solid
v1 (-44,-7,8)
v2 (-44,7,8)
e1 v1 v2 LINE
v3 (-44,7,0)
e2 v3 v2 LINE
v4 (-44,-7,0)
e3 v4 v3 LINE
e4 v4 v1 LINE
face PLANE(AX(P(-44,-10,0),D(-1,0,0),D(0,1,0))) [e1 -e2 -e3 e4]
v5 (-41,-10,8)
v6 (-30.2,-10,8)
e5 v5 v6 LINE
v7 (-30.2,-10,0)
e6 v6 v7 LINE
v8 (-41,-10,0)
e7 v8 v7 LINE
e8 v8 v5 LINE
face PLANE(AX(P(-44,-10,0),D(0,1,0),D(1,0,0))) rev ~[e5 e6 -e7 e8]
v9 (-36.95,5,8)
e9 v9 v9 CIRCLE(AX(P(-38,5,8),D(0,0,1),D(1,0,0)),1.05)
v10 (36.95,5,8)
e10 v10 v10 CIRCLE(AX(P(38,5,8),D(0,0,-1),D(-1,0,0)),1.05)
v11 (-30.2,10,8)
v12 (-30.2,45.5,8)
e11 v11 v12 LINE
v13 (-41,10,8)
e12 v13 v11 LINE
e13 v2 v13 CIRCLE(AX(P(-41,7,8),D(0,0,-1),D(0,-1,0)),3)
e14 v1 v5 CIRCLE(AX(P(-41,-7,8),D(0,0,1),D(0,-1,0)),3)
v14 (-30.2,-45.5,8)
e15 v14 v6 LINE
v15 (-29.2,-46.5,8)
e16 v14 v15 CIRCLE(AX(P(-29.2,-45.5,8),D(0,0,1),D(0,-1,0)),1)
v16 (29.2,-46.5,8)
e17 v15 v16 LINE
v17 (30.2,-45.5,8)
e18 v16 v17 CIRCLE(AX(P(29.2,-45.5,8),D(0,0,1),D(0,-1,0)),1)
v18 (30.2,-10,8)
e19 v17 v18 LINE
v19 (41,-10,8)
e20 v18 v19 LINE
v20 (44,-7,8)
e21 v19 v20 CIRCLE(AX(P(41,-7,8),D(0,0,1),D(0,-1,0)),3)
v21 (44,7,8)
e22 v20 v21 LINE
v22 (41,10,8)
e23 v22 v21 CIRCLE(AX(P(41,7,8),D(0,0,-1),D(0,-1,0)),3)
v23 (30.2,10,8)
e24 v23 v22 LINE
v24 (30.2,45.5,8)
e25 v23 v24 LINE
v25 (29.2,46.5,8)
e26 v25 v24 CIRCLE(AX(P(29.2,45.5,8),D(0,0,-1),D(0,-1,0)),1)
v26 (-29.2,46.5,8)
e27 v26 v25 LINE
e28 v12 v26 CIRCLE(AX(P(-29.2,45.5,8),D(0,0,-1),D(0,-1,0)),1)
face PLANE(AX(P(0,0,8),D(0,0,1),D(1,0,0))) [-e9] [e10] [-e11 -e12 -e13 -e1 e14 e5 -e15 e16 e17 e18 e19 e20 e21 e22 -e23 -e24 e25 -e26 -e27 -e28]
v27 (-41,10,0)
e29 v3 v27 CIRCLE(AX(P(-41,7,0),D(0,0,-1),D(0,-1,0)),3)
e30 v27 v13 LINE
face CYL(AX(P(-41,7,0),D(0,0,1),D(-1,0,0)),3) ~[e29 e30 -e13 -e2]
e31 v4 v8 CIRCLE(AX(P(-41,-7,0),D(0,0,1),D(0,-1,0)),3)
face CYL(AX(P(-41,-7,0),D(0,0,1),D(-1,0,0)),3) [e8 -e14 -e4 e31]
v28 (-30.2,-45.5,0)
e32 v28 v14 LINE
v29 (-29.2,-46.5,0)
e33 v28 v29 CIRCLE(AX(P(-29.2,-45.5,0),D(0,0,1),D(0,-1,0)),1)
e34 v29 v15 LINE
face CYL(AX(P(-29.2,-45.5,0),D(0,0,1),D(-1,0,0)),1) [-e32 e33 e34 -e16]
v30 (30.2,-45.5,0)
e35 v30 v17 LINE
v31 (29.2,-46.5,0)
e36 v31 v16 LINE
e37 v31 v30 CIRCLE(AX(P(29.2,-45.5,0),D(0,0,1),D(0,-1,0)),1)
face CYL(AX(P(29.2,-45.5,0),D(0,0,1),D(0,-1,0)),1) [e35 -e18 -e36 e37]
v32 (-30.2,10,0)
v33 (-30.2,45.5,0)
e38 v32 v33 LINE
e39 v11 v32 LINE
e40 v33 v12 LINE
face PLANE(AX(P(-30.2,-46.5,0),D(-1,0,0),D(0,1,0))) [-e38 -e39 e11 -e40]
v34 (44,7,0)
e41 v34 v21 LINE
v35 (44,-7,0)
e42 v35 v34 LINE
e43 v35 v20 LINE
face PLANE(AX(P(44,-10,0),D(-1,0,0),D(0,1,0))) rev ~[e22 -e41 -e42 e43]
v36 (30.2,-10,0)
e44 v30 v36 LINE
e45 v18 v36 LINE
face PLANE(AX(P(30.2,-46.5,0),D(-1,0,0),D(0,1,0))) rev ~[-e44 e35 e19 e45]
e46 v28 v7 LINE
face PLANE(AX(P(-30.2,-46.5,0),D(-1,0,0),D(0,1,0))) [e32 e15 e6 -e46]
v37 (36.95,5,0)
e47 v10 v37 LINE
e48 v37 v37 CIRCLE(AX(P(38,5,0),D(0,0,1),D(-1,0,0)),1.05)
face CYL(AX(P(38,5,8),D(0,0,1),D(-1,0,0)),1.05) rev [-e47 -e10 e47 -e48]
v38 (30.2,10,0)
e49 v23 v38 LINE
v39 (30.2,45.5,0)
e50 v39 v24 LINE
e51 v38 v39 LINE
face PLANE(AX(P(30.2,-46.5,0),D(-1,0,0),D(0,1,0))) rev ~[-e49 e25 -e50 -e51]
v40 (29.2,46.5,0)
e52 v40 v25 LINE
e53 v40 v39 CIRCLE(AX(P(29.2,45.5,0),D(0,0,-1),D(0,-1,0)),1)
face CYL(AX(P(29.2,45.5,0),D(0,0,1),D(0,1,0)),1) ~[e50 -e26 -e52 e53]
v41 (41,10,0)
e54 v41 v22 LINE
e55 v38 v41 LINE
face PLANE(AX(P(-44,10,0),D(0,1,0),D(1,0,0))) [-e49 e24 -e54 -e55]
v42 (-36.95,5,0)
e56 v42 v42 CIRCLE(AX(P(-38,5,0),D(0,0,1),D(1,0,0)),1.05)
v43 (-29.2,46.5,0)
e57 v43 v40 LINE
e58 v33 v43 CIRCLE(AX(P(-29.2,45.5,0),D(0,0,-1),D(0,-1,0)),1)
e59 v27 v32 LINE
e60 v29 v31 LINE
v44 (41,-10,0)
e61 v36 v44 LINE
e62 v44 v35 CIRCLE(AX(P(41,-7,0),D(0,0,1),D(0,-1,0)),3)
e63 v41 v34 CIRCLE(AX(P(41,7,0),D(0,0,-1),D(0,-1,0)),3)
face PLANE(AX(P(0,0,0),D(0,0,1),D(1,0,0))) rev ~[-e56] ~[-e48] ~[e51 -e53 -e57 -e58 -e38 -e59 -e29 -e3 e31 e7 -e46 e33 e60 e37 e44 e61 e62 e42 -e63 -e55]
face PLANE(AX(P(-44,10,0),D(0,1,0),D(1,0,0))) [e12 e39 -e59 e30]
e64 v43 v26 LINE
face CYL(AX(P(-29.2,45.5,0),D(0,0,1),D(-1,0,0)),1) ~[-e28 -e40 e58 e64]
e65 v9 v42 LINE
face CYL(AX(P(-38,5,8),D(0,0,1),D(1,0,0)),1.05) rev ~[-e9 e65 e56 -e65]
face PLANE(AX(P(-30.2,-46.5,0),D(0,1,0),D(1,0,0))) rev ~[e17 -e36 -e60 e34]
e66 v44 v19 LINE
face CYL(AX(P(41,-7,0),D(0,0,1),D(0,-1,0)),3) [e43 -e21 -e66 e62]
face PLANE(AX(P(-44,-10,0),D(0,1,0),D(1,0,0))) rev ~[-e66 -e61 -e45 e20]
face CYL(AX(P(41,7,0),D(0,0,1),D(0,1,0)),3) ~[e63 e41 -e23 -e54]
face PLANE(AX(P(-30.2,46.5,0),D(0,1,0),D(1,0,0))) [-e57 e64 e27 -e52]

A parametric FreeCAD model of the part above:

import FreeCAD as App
import Part
import Sketcher

V = App.Vector
Q = App.Units.Quantity


def edges_at(feature, points):
    """Names of the edges that pass closest to the given points."""
    edges = feature.Shape.Edges
    near = lambda p: min(range(len(edges)), key=lambda i: edges[i].distToShape(Part.Vertex(*p))[0])
    return sorted({f"Edge{near(p) + 1}" for p in points})


def add_polygon(sketch, points):
    """Adds a closed chain of lines whose ends are joined by coincident constraints."""
    first, n = sketch.GeometryCount, len(points)
    for a, b in zip(points, points[1:] + points[:1]):
        sketch.addGeometry(Part.LineSegment(App.Vector(*a, 0), App.Vector(*b, 0)), False)
    for i in range(n):
        sketch.addConstraint(Sketcher.Constraint("Coincident", first + i, 2, first + (i + 1) % n, 1))

doc = App.newDocument("Part")
body = doc.addObject("PartDesign::Body", "Body")

sketch1 = body.newObject("Sketcher::SketchObject", "Sketch")
sketch1.AttachmentSupport = (doc.getObject("XY_Plane"), [""])
sketch1.MapMode = "FlatFace"
add_polygon(sketch1, [(-30.2, 46.5), (-30.2, -46.5), (30.2, -46.5), (30.2, 46.5)])
sketch1.addConstraint([
    Sketcher.Constraint("Vertical", 0),
    Sketcher.Constraint("Horizontal", 1),
    Sketcher.Constraint("Vertical", 2),
    Sketcher.Constraint("Horizontal", 3),
    Sketcher.Constraint("Symmetric", 0, 2, 2, 2, -1, 1),
    Sketcher.Constraint("DistanceY", 0, 2, 0, 1, Q("93 mm")),
    Sketcher.Constraint("DistanceX", 1, 1, 1, 2, Q("60.4 mm")),
])
pad1 = body.newObject("PartDesign::Pad", "Pad")
pad1.Profile = sketch1
pad1.Length = 8

sketch2 = body.newObject("Sketcher::SketchObject", "Sketch001")
sketch2.AttachmentSupport = (doc.getObject("XY_Plane"), [""])
sketch2.MapMode = "FlatFace"
add_polygon(sketch2, [(-44, 10), (-44, -10), (44, -10), (44, 10)])
sketch2.addConstraint([
    Sketcher.Constraint("Vertical", 0),
    Sketcher.Constraint("Horizontal", 1),
    Sketcher.Constraint("Vertical", 2),
    Sketcher.Constraint("Horizontal", 3),
    Sketcher.Constraint("Symmetric", 0, 2, 2, 2, -1, 1),
    Sketcher.Constraint("DistanceX", 1, 1, 1, 2, Q("88 mm")),
    Sketcher.Constraint("DistanceY", 0, 2, 0, 1, Q("20 mm")),
])
pad2 = body.newObject("PartDesign::Pad", "Pad001")
pad2.Profile = sketch2
pad2.Length = 8

sketch3 = body.newObject("Sketcher::SketchObject", "Sketch002")
sketch3.AttachmentSupport = (doc.getObject("XY_Plane"), [""])
sketch3.MapMode = "FlatFace"
sketch3.AttachmentOffset = App.Placement(V(0, 0, 8), App.Rotation())
sketch3.addGeometry(Part.Circle(V(-38, 5, 0), V(0, 0, 1), 1.05), False)
sketch3.addConstraint([
    Sketcher.Constraint("Diameter", 0, Q("2.1 mm")),
    Sketcher.Constraint("DistanceX", 0, 3, -1, 1, Q("38 mm")),
    Sketcher.Constraint("DistanceY", -1, 1, 0, 3, Q("5 mm")),
])
pocket1 = body.newObject("PartDesign::Pocket", "Pocket")
pocket1.Profile = sketch3
pocket1.Type = "ThroughAll"
doc.recompute()

fillet = body.newObject("PartDesign::Fillet", "Fillet")
fillet.Base = (pocket1, edges_at(pocket1, [
    (-44, -10, 4),
    (44, -10, 4),
    (44, 10, 4),
    (-44, 10, 4),
]))
fillet.Radius = 3
doc.recompute()

mirrored = body.newObject("PartDesign::Mirrored", "Mirrored")
mirrored.Originals = [pocket1]
mirrored.MirrorPlane = (doc.getObject("YZ_Plane"), [""])
body.Tip = mirrored
doc.recompute()

fillet2 = body.newObject("PartDesign::Fillet", "Fillet001")
fillet2.Base = (mirrored, edges_at(mirrored, [
    (-30.2, -46.5, 4),
    (30.2, -46.5, 4),
    (30.2, 46.5, 4),
    (-30.2, 46.5, 4),
]))
fillet2.Radius = 1

doc.recompute()
